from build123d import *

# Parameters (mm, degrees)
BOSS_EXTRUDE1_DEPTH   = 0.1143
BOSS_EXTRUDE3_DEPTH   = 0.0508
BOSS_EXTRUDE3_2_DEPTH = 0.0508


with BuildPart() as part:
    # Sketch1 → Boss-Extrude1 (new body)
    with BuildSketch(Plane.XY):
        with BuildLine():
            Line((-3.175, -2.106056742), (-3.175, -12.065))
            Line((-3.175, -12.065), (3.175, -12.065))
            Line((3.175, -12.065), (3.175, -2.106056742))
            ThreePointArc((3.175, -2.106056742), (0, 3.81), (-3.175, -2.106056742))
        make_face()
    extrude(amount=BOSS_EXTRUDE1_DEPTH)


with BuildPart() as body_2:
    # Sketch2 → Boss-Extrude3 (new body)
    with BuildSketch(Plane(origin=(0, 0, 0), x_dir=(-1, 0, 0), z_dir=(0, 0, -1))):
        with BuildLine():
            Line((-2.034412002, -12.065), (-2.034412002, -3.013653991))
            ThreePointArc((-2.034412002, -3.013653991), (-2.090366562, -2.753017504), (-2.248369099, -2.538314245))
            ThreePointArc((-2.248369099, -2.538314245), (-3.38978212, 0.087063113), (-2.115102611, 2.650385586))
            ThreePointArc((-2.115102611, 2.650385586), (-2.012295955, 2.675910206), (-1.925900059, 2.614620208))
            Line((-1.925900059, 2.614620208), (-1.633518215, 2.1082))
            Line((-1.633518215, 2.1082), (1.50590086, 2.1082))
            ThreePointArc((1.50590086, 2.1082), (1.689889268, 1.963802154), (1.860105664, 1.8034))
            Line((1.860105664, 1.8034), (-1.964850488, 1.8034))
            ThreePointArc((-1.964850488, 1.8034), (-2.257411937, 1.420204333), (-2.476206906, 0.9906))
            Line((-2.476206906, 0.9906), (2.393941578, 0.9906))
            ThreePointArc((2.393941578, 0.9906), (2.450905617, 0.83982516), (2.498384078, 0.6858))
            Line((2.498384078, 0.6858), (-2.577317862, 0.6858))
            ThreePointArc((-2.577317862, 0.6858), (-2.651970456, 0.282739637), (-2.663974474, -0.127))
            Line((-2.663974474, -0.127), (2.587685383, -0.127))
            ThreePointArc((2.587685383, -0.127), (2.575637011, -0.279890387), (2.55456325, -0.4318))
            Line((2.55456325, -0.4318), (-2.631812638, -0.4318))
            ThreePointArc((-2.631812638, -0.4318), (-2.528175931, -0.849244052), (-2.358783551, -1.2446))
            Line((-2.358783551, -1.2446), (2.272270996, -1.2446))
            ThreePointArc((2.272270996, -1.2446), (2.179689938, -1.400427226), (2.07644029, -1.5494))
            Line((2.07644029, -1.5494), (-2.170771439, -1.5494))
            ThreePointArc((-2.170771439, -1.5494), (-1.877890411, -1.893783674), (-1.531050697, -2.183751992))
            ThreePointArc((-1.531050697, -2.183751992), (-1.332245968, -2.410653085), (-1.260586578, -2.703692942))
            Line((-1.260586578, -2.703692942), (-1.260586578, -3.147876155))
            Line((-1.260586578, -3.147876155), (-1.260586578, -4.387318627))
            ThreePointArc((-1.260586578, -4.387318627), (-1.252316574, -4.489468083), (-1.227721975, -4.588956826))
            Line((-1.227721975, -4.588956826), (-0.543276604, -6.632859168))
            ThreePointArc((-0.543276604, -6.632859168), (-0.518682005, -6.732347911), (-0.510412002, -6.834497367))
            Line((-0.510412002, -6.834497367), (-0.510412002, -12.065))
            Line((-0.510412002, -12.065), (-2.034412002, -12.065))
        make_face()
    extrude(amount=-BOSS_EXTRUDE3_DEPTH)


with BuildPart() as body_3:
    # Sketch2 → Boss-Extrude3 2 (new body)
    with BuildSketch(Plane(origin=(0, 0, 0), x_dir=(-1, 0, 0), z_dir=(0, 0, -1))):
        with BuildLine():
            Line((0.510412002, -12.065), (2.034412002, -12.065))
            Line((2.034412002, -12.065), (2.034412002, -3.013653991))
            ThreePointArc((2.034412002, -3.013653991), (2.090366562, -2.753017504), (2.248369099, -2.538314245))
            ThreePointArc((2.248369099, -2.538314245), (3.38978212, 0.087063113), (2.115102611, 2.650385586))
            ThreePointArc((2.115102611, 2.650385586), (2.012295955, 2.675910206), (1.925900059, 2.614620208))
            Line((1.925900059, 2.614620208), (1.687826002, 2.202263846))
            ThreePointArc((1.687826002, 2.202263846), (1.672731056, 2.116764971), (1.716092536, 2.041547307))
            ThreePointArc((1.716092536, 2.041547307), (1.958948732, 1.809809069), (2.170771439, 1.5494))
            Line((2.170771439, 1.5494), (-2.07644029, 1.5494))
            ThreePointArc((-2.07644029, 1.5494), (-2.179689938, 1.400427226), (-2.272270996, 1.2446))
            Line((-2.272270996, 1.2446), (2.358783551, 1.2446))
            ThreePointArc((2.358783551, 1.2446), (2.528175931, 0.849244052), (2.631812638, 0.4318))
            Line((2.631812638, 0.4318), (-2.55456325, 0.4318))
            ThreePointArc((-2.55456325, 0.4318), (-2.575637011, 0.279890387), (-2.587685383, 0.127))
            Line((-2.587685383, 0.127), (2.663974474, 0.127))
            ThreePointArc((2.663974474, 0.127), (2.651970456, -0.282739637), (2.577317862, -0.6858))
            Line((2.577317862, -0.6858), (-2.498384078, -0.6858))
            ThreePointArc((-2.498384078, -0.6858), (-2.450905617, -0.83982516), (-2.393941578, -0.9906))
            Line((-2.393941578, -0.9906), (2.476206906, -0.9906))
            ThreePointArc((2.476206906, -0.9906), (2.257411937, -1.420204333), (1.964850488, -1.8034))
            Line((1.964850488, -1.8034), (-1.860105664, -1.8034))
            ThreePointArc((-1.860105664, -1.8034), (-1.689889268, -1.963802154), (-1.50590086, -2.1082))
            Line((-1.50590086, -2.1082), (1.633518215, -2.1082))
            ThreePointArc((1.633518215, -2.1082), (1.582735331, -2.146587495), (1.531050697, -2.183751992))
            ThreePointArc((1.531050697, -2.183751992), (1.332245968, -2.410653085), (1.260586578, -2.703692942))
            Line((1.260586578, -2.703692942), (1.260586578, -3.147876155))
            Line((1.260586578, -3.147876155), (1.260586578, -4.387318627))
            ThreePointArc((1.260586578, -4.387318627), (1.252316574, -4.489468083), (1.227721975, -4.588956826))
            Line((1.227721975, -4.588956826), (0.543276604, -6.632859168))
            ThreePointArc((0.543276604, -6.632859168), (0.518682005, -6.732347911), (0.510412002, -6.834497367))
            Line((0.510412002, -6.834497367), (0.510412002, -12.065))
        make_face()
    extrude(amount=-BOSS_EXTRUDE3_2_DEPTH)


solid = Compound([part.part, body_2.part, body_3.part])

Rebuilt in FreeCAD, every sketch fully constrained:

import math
import FreeCAD as App
import Part
import Sketcher
from FreeCAD import Vector
Q = App.Units.Quantity

doc = App.newDocument("Part")
body = doc.addObject("PartDesign::Body", "Body")

sketch1 = body.newObject("Sketcher::SketchObject", "Sketch")
sketch1.AttachmentSupport = (doc.getObject("XY_Plane"), [""])
sketch1.MapMode = "FlatFace"
sketch1.addGeometry([
    Part.LineSegment(Vector(-3.2, -2.1, 0), Vector(-3.2, -12.1, 0)),
    Part.LineSegment(Vector(-3.2, -12.1, 0), Vector(3.2, -12.1, 0)),
    Part.LineSegment(Vector(3.2, -12.1, 0), Vector(3.2, -2.1, 0)),
    Part.ArcOfCircle(Part.Circle(Vector(0, 0, 0), Vector(0, 0, 1), 3.8), math.radians(-34), math.radians(214)),
], False)
sketch1.addConstraint([
    Sketcher.Constraint("Coincident", 0, 2, 1, 1),
    Sketcher.Constraint("Coincident", 1, 2, 2, 1),
    Sketcher.Constraint("Coincident", 2, 2, 3, 1),
    Sketcher.Constraint("Coincident", 3, 2, 0, 1),
    Sketcher.Constraint("Vertical", 0),
    Sketcher.Constraint("Horizontal", 1),
    Sketcher.Constraint("Vertical", 2),
    Sketcher.Constraint("Coincident", 3, 3, -1, 1),
    Sketcher.Constraint("Horizontal", 2, 2, 3, 2),
    Sketcher.Constraint("Radius", 3, Q("0.15 in")),
    Sketcher.Constraint("DistanceX", 1, 1, 1, 2, Q("0.25 in")),
    Sketcher.Constraint("DistanceY", 0, 2, -1, 1, Q("0.475 in")),
])
pad1 = body.newObject("PartDesign::Pad", "Pad")
pad1.Profile = sketch1
pad1.Length = Q("0.0045 in")
body2 = doc.addObject("PartDesign::Body", "Body001")

sketch2 = body2.newObject("Sketcher::SketchObject", "Sketch001")
sketch2.AttachmentSupport = (doc.getObject("XY_Plane001"), [""])
sketch2.MapMode = "FlatFace"
sketch2.addGeometry([
    Part.LineSegment(Vector(2.03, -3.01, 0), Vector(2.03, -12.06, 0)),
    Part.LineSegment(Vector(2.03, -12.06, 0), Vector(0.51, -12.06, 0)),
    Part.LineSegment(Vector(0.51, -12.06, 0), Vector(0.51, -6.83, 0)),
    Part.ArcOfCircle(Part.Circle(Vector(1.15, -6.83, 0), Vector(0, 0, 1), 0.63), math.radians(161.49), math.radians(180)),
    Part.LineSegment(Vector(0.54, -6.63, 0), Vector(1.23, -4.59, 0)),
    Part.ArcOfCircle(Part.Circle(Vector(0.63, -4.39, 0), Vector(0, 0, 1), 0.64), math.radians(-18.51), math.radians(0)),
    Part.LineSegment(Vector(1.26, -4.39, 0), Vector(1.26, -2.7, 0)),
    Part.ArcOfCircle(Part.Circle(Vector(1.9, -2.7, 0), Vector(0, 0, 1), 0.63), math.radians(125), math.radians(180)),
    Part.ArcOfCircle(Part.Circle(Vector(0, 0, 0), Vector(0, 0, 1), 2.67), math.radians(-54.97), math.radians(-35.52)),
    Part.LineSegment(Vector(2.17, -1.55, 0), Vector(-2.08, -1.55, 0)),
    Part.ArcOfCircle(Part.Circle(Vector(0, 0, 0), Vector(0, 0, 1), 2.59), math.radians(-151.29), math.radians(-143.27)),
    Part.LineSegment(Vector(-2.27, -1.24, 0), Vector(2.36, -1.24, 0)),
    Part.ArcOfCircle(Part.Circle(Vector(0, 0, 0), Vector(0, 0, 1), 2.67), math.radians(-27.82), math.radians(-9.32)),
    Part.LineSegment(Vector(2.63, -0.43, 0), Vector(-2.55, -0.43, 0)),
    Part.ArcOfCircle(Part.Circle(Vector(0, 0, 0), Vector(0, 0, 1), 2.59), math.radians(-177.19), math.radians(-170.41)),
    Part.LineSegment(Vector(-2.59, -0.13, 0), Vector(2.66, -0.13, 0)),
    Part.ArcOfCircle(Part.Circle(Vector(0, 0, 0), Vector(0, 0, 1), 2.67), math.radians(-2.73), math.radians(14.9)),
    Part.LineSegment(Vector(2.58, 0.69, 0), Vector(-2.5, 0.69, 0)),
    Part.ArcOfCircle(Part.Circle(Vector(0, 0, 0), Vector(0, 0, 1), 2.59), math.radians(157.52), math.radians(164.65)),
    Part.LineSegment(Vector(-2.39, 0.99, 0), Vector(2.48, 0.99, 0)),
    Part.ArcOfCircle(Part.Circle(Vector(0, 0, 0), Vector(0, 0, 1), 2.67), math.radians(22), math.radians(43)),
    Part.LineSegment(Vector(1.96, 1.8, 0), Vector(-1.86, 1.8, 0)),
    Part.ArcOfCircle(Part.Circle(Vector(0, 0, 0), Vector(0, 0, 1), 2.59), math.radians(125.54), math.radians(135.89)),
    Part.LineSegment(Vector(-1.51, 2.11, 0), Vector(1.63, 2.11, 0)),
    Part.LineSegment(Vector(1.63, 2.11, 0), Vector(1.93, 2.61, 0)),
    Part.ArcOfCircle(Part.Circle(Vector(2.04, 2.55, 0), Vector(0, 0, 1), 0.13), math.radians(51), math.radians(150)),
    Part.ArcOfCircle(Part.Circle(Vector(0, 0, 0), Vector(0, 0, 1), 3.39), math.radians(-48), math.radians(51)),
    Part.ArcOfCircle(Part.Circle(Vector(2.67, -3.01, 0), Vector(0, 0, 1), 0.64), math.radians(132), math.radians(180)),
], False)
sketch2.addConstraint([
    Sketcher.Constraint("Coincident", 0, 2, 1, 1),
    Sketcher.Constraint("Coincident", 1, 2, 2, 1),
    Sketcher.Constraint("Tangent", 2, 2, 3, 2),
    Sketcher.Constraint("Tangent", 3, 1, 4, 1),
    Sketcher.Constraint("Tangent", 4, 2, 5, 1),
    Sketcher.Constraint("Tangent", 5, 2, 6, 1),
    Sketcher.Constraint("Tangent", 6, 2, 7, 2),
    Sketcher.Constraint("Tangent", 7, 1, 8, 1),
    Sketcher.Constraint("Coincident", 8, 2, 9, 1),
    Sketcher.Constraint("Coincident", 9, 2, 10, 2),
    Sketcher.Constraint("Coincident", 10, 1, 11, 1),
    Sketcher.Constraint("Coincident", 11, 2, 12, 1),
    Sketcher.Constraint("Coincident", 12, 2, 13, 1),
    Sketcher.Constraint("Coincident", 13, 2, 14, 2),
    Sketcher.Constraint("Coincident", 14, 1, 15, 1),
    Sketcher.Constraint("Coincident", 15, 2, 16, 1),
    Sketcher.Constraint("Coincident", 16, 2, 17, 1),
    Sketcher.Constraint("Coincident", 17, 2, 18, 2),
    Sketcher.Constraint("Coincident", 18, 1, 19, 1),
    Sketcher.Constraint("Coincident", 19, 2, 20, 1),
    Sketcher.Constraint("Coincident", 20, 2, 21, 1),
    Sketcher.Constraint("Coincident", 21, 2, 22, 2),
    Sketcher.Constraint("Coincident", 22, 1, 23, 1),
    Sketcher.Constraint("Coincident", 23, 2, 24, 1),
    Sketcher.Constraint("Tangent", 24, 2, 25, 2),
    Sketcher.Constraint("Tangent", 25, 1, 26, 2),
    Sketcher.Constraint("Tangent", 26, 1, 27, 1),
    Sketcher.Constraint("Tangent", 27, 2, 0, 1),
    Sketcher.Constraint("Vertical", 0),
    Sketcher.Constraint("Horizontal", 1),
    Sketcher.Constraint("Vertical", 2),
    Sketcher.Constraint("Vertical", 6),
    Sketcher.Constraint("Horizontal", 9),
    Sketcher.Constraint("Horizontal", 11),
    Sketcher.Constraint("Horizontal", 13),
    Sketcher.Constraint("Horizontal", 15),
    Sketcher.Constraint("Horizontal", 17),
    Sketcher.Constraint("Horizontal", 19),
    Sketcher.Constraint("Horizontal", 21),
    Sketcher.Constraint("Horizontal", 23),
    Sketcher.Constraint("Coincident", 8, 3, -1, 1),
    Sketcher.Constraint("Coincident", 10, 3, -1, 1),
    Sketcher.Constraint("Coincident", 12, 3, -1, 1),
    Sketcher.Constraint("Coincident", 14, 3, -1, 1),
    Sketcher.Constraint("Coincident", 16, 3, -1, 1),
    Sketcher.Constraint("Coincident", 18, 3, -1, 1),
    Sketcher.Constraint("Coincident", 20, 3, -1, 1),
    Sketcher.Constraint("Coincident", 22, 3, -1, 1),
    Sketcher.Constraint("Coincident", 26, 3, -1, 1),
    Sketcher.Constraint("Equal", 3, 5),
    Sketcher.Constraint("Equal", 5, 7),
    Sketcher.Constraint("Equal", 8, 12),
    Sketcher.Constraint("Equal", 10, 14),
    Sketcher.Constraint("Equal", 12, 16),
    Sketcher.Constraint("Equal", 14, 18),
    Sketcher.Constraint("Equal", 16, 20),
    Sketcher.Constraint("Equal", 18, 22),
    Sketcher.Constraint("Equal", 7, 27),
    Sketcher.Constraint("Angle", 24, Q("60 deg")),
    Sketcher.Constraint("Radius", 3, Q("0.025 in")),
    Sketcher.Constraint("Radius", 8, Q("0.105 in")),
    Sketcher.Constraint("Radius", 10, Q("0.102 in")),
    Sketcher.Constraint("Radius", 25, Q("0.005 in")),
    Sketcher.Constraint("DistanceX", 1, 2, 1, 1, Q("0.06 in")),
    Sketcher.Constraint("Radius", 26, Q("0.1335 in")),
    Sketcher.Constraint("DistanceY", 9, 2, 18, 1, Q("0.1 in")),
    Sketcher.Constraint("DistanceY", 0, 2, -1, 1, Q("0.475 in")),
    Sketcher.Constraint("DistanceY", 8, 2, -1, 1, Q("0.061 in")),
    Sketcher.Constraint("DistanceY", 10, 1, -1, 1, Q("0.049 in")),
    Sketcher.Constraint("DistanceY", 12, 2, -1, 1, Q("0.017 in")),
    Sketcher.Constraint("DistanceY", 14, 1, -1, 1, Q("0.005 in")),
    Sketcher.Constraint("DistanceY", -1, 1, 16, 2, Q("0.027 in")),
    Sketcher.Constraint("DistanceY", -1, 1, 20, 2, Q("0.071 in")),
    Sketcher.Constraint("DistanceY", -1, 1, 22, 1, Q("0.083 in")),
    Sketcher.Constraint("DistanceX", 23, 1, 23, 2, Q("3.139419 mm")),
    Sketcher.Constraint("DistanceY", 27, 3, 7, 1, Q("0.829902 mm")),
    Sketcher.Constraint("DistanceX", 12, 2, 27, 3, Q("0.037599 mm")),
    Sketcher.Constraint("Distance", 4, Q("2.155459 mm")),
    Sketcher.Constraint("DistanceY", 2, 1, 2, 2, Q("5.230503 mm")),
])
pad2 = body2.newObject("PartDesign::Pad", "Pad001")
pad2.Profile = sketch2
pad2.Length = Q("0.002 in")
body3 = doc.addObject("PartDesign::Body", "Body002")

sketch3 = body3.newObject("Sketcher::SketchObject", "Sketch002")
sketch3.AttachmentSupport = (doc.getObject("XY_Plane002"), [""])
sketch3.MapMode = "FlatFace"
sketch3.addGeometry([
    Part.LineSegment(Vector(-0.51, -12.06, 0), Vector(-2.03, -12.06, 0)),
    Part.LineSegment(Vector(-2.03, -12.06, 0), Vector(-2.03, -3.01, 0)),
    Part.ArcOfCircle(Part.Circle(Vector(-2.67, -3.01, 0), Vector(0, 0, 1), 0.64), math.radians(0), math.radians(48)),
    Part.ArcOfCircle(Part.Circle(Vector(0, 0, 0), Vector(0, 0, 1), 3.39), math.radians(129), math.radians(228)),
    Part.ArcOfCircle(Part.Circle(Vector(-2.04, 2.55, 0), Vector(0, 0, 1), 0.13), math.radians(30), math.radians(129)),
    Part.LineSegment(Vector(-1.93, 2.61, 0), Vector(-1.69, 2.2, 0)),
    Part.ArcOfCircle(Part.Circle(Vector(-1.8, 2.14, 0), Vector(0, 0, 1), 0.13), math.radians(-50), math.radians(30)),
    Part.ArcOfCircle(Part.Circle(Vector(0, 0, 0), Vector(0, 0, 1), 2.67), math.radians(130.05), math.radians(144.48)),
    Part.LineSegment(Vector(-2.17, 1.55, 0), Vector(2.08, 1.55, 0)),
    Part.ArcOfCircle(Part.Circle(Vector(0, 0, 0), Vector(0, 0, 1), 2.59), math.radians(28.71), math.radians(36.73)),
    Part.LineSegment(Vector(2.27, 1.24, 0), Vector(-2.36, 1.24, 0)),
    Part.ArcOfCircle(Part.Circle(Vector(0, 0, 0), Vector(0, 0, 1), 2.67), math.radians(152.18), math.radians(170.68)),
    Part.LineSegment(Vector(-2.63, 0.43, 0), Vector(2.55, 0.43, 0)),
    Part.ArcOfCircle(Part.Circle(Vector(0, 0, 0), Vector(0, 0, 1), 2.59), math.radians(2.81), math.radians(9.59)),
    Part.LineSegment(Vector(2.59, 0.13, 0), Vector(-2.66, 0.13, 0)),
    Part.ArcOfCircle(Part.Circle(Vector(0, 0, 0), Vector(0, 0, 1), 2.67), math.radians(177.27), math.radians(194.9)),
    Part.LineSegment(Vector(-2.58, -0.69, 0), Vector(2.5, -0.69, 0)),
    Part.ArcOfCircle(Part.Circle(Vector(0, 0, 0), Vector(0, 0, 1), 2.59), math.radians(-22.48), math.radians(-15.35)),
    Part.LineSegment(Vector(2.39, -0.99, 0), Vector(-2.48, -0.99, 0)),
    Part.ArcOfCircle(Part.Circle(Vector(0, 0, 0), Vector(0, 0, 1), 2.67), math.radians(-158), math.radians(-137)),
    Part.LineSegment(Vector(-1.96, -1.8, 0), Vector(1.86, -1.8, 0)),
    Part.ArcOfCircle(Part.Circle(Vector(0, 0, 0), Vector(0, 0, 1), 2.59), math.radians(-54.46), math.radians(-44.11)),
    Part.LineSegment(Vector(1.51, -2.11, 0), Vector(-1.63, -2.11, 0)),
    Part.ArcOfCircle(Part.Circle(Vector(0, 0, 0), Vector(0, 0, 1), 2.67), math.radians(-127.77), math.radians(-125.03)),
    Part.ArcOfCircle(Part.Circle(Vector(-1.9, -2.7, 0), Vector(0, 0, 1), 0.63), math.radians(0), math.radians(55)),
    Part.LineSegment(Vector(-1.26, -2.7, 0), Vector(-1.26, -4.39, 0)),
    Part.ArcOfCircle(Part.Circle(Vector(-0.63, -4.39, 0), Vector(0, 0, 1), 0.64), math.radians(-180), math.radians(-161.49)),
    Part.LineSegment(Vector(-1.23, -4.59, 0), Vector(-0.54, -6.63, 0)),
    Part.ArcOfCircle(Part.Circle(Vector(-1.15, -6.83, 0), Vector(0, 0, 1), 0.63), math.radians(0), math.radians(18.51)),
    Part.LineSegment(Vector(-0.51, -6.83, 0), Vector(-0.51, -12.06, 0)),
], False)
sketch3.addConstraint([
    Sketcher.Constraint("Coincident", 0, 2, 1, 1),
    Sketcher.Constraint("Tangent", 1, 2, 2, 1),
    Sketcher.Constraint("Tangent", 2, 2, 3, 2),
    Sketcher.Constraint("Tangent", 3, 1, 4, 2),
    Sketcher.Constraint("Tangent", 4, 1, 5, 1),
    Sketcher.Constraint("Tangent", 5, 2, 6, 2),
    Sketcher.Constraint("Tangent", 6, 1, 7, 1),
    Sketcher.Constraint("Coincident", 7, 2, 8, 1),
    Sketcher.Constraint("Coincident", 8, 2, 9, 2),
    Sketcher.Constraint("Coincident", 9, 1, 10, 1),
    Sketcher.Constraint("Coincident", 10, 2, 11, 1),
    Sketcher.Constraint("Coincident", 11, 2, 12, 1),
    Sketcher.Constraint("Coincident", 12, 2, 13, 2),
    Sketcher.Constraint("Coincident", 13, 1, 14, 1),
    Sketcher.Constraint("Coincident", 14, 2, 15, 1),
    Sketcher.Constraint("Coincident", 15, 2, 16, 1),
    Sketcher.Constraint("Coincident", 16, 2, 17, 2),
    Sketcher.Constraint("Coincident", 17, 1, 18, 1),
    Sketcher.Constraint("Coincident", 18, 2, 19, 1),
    Sketcher.Constraint("Coincident", 19, 2, 20, 1),
    Sketcher.Constraint("Coincident", 20, 2, 21, 2),
    Sketcher.Constraint("Coincident", 21, 1, 22, 1),
    Sketcher.Constraint("Coincident", 22, 2, 23, 1),
    Sketcher.Constraint("Tangent", 23, 2, 24, 2),
    Sketcher.Constraint("Tangent", 24, 1, 25, 1),
    Sketcher.Constraint("Tangent", 25, 2, 26, 1),
    Sketcher.Constraint("Tangent", 26, 2, 27, 1),
    Sketcher.Constraint("Tangent", 27, 2, 28, 2),
    Sketcher.Constraint("Tangent", 28, 1, 29, 1),
    Sketcher.Constraint("Coincident", 29, 2, 0, 1),
    Sketcher.Constraint("Horizontal", 0),
    Sketcher.Constraint("Vertical", 1),
    Sketcher.Constraint("Horizontal", 8),
    Sketcher.Constraint("Horizontal", 10),
    Sketcher.Constraint("Horizontal", 12),
    Sketcher.Constraint("Horizontal", 14),
    Sketcher.Constraint("Horizontal", 16),
    Sketcher.Constraint("Horizontal", 18),
    Sketcher.Constraint("Horizontal", 20),
    Sketcher.Constraint("Horizontal", 22),
    Sketcher.Constraint("Vertical", 25),
    Sketcher.Constraint("Vertical", 29),
    Sketcher.Constraint("Coincident", 3, 3, -1, 1),
    Sketcher.Constraint("Coincident", 7, 3, -1, 1),
    Sketcher.Constraint("Coincident", 9, 3, -1, 1),
    Sketcher.Constraint("Coincident", 11, 3, -1, 1),
    Sketcher.Constraint("Coincident", 13, 3, -1, 1),
    Sketcher.Constraint("Coincident", 15, 3, -1, 1),
    Sketcher.Constraint("Coincident", 17, 3, -1, 1),
    Sketcher.Constraint("Coincident", 19, 3, -1, 1),
    Sketcher.Constraint("Coincident", 21, 3, -1, 1),
    Sketcher.Constraint("Coincident", 23, 3, -1, 1),
    Sketcher.Constraint("Equal", 4, 6),
    Sketcher.Constraint("Equal", 7, 11),
    Sketcher.Constraint("Equal", 9, 13),
    Sketcher.Constraint("Equal", 11, 15),
    Sketcher.Constraint("Equal", 13, 17),
    Sketcher.Constraint("Equal", 15, 19),
    Sketcher.Constraint("Equal", 17, 21),
    Sketcher.Constraint("Equal", 19, 23),
    Sketcher.Constraint("Equal", 2, 24),
    Sketcher.Constraint("Equal", 24, 26),
    Sketcher.Constraint("Equal", 26, 28),
    Sketcher.Constraint("Angle", 5, Q("-60 deg")),
    Sketcher.Constraint("Radius", 2, Q("0.025 in")),
    Sketcher.Constraint("Radius", 4, Q("0.005 in")),
    Sketcher.Constraint("Radius", 7, Q("0.105 in")),
    Sketcher.Constraint("Radius", 9, Q("0.102 in")),
    Sketcher.Constraint("DistanceX", 0, 2, 0, 1, Q("0.06 in")),
    Sketcher.Constraint("Radius", 3, Q("0.1335 in")),
    Sketcher.Constraint("DistanceY", 17, 1, 8, 2, Q("0.1 in")),
    Sketcher.Constraint("DistanceY", 0, 2, -1, 1, Q("0.475 in")),
    Sketcher.Constraint("DistanceY", -1, 1, 7, 2, Q("0.061 in")),
    Sketcher.Constraint("DistanceY", -1, 1, 9, 1, Q("0.049 in")),
    Sketcher.Constraint("DistanceY", -1, 1, 11, 2, Q("0.017 in")),
    Sketcher.Constraint("DistanceY", -1, 1, 13, 1, Q("0.005 in")),
    Sketcher.Constraint("DistanceY", 15, 2, -1, 1, Q("0.027 in")),
    Sketcher.Constraint("DistanceY", 19, 2, -1, 1, Q("0.071 in")),
    Sketcher.Constraint("DistanceY", 21, 1, -1, 1, Q("0.083 in")),
    Sketcher.Constraint("DistanceX", 4, 1, -1, 1, Q("1.9259 mm")),
    Sketcher.Constraint("DistanceX", 2, 3, 6, 3, Q("0.871601 mm")),
    Sketcher.Constraint("DistanceX", 19, 2, 23, 2, Q("0.4338 mm")),
    Sketcher.Constraint("Distance", 27, Q("2.155459 mm")),
    Sketcher.Constraint("DistanceY", 25, 2, 25, 1, Q("1.683626 mm")),
])
pad3 = body3.newObject("PartDesign::Pad", "Pad002")
pad3.Profile = sketch3
pad3.Length = Q("0.002 in")

doc.recompute()
